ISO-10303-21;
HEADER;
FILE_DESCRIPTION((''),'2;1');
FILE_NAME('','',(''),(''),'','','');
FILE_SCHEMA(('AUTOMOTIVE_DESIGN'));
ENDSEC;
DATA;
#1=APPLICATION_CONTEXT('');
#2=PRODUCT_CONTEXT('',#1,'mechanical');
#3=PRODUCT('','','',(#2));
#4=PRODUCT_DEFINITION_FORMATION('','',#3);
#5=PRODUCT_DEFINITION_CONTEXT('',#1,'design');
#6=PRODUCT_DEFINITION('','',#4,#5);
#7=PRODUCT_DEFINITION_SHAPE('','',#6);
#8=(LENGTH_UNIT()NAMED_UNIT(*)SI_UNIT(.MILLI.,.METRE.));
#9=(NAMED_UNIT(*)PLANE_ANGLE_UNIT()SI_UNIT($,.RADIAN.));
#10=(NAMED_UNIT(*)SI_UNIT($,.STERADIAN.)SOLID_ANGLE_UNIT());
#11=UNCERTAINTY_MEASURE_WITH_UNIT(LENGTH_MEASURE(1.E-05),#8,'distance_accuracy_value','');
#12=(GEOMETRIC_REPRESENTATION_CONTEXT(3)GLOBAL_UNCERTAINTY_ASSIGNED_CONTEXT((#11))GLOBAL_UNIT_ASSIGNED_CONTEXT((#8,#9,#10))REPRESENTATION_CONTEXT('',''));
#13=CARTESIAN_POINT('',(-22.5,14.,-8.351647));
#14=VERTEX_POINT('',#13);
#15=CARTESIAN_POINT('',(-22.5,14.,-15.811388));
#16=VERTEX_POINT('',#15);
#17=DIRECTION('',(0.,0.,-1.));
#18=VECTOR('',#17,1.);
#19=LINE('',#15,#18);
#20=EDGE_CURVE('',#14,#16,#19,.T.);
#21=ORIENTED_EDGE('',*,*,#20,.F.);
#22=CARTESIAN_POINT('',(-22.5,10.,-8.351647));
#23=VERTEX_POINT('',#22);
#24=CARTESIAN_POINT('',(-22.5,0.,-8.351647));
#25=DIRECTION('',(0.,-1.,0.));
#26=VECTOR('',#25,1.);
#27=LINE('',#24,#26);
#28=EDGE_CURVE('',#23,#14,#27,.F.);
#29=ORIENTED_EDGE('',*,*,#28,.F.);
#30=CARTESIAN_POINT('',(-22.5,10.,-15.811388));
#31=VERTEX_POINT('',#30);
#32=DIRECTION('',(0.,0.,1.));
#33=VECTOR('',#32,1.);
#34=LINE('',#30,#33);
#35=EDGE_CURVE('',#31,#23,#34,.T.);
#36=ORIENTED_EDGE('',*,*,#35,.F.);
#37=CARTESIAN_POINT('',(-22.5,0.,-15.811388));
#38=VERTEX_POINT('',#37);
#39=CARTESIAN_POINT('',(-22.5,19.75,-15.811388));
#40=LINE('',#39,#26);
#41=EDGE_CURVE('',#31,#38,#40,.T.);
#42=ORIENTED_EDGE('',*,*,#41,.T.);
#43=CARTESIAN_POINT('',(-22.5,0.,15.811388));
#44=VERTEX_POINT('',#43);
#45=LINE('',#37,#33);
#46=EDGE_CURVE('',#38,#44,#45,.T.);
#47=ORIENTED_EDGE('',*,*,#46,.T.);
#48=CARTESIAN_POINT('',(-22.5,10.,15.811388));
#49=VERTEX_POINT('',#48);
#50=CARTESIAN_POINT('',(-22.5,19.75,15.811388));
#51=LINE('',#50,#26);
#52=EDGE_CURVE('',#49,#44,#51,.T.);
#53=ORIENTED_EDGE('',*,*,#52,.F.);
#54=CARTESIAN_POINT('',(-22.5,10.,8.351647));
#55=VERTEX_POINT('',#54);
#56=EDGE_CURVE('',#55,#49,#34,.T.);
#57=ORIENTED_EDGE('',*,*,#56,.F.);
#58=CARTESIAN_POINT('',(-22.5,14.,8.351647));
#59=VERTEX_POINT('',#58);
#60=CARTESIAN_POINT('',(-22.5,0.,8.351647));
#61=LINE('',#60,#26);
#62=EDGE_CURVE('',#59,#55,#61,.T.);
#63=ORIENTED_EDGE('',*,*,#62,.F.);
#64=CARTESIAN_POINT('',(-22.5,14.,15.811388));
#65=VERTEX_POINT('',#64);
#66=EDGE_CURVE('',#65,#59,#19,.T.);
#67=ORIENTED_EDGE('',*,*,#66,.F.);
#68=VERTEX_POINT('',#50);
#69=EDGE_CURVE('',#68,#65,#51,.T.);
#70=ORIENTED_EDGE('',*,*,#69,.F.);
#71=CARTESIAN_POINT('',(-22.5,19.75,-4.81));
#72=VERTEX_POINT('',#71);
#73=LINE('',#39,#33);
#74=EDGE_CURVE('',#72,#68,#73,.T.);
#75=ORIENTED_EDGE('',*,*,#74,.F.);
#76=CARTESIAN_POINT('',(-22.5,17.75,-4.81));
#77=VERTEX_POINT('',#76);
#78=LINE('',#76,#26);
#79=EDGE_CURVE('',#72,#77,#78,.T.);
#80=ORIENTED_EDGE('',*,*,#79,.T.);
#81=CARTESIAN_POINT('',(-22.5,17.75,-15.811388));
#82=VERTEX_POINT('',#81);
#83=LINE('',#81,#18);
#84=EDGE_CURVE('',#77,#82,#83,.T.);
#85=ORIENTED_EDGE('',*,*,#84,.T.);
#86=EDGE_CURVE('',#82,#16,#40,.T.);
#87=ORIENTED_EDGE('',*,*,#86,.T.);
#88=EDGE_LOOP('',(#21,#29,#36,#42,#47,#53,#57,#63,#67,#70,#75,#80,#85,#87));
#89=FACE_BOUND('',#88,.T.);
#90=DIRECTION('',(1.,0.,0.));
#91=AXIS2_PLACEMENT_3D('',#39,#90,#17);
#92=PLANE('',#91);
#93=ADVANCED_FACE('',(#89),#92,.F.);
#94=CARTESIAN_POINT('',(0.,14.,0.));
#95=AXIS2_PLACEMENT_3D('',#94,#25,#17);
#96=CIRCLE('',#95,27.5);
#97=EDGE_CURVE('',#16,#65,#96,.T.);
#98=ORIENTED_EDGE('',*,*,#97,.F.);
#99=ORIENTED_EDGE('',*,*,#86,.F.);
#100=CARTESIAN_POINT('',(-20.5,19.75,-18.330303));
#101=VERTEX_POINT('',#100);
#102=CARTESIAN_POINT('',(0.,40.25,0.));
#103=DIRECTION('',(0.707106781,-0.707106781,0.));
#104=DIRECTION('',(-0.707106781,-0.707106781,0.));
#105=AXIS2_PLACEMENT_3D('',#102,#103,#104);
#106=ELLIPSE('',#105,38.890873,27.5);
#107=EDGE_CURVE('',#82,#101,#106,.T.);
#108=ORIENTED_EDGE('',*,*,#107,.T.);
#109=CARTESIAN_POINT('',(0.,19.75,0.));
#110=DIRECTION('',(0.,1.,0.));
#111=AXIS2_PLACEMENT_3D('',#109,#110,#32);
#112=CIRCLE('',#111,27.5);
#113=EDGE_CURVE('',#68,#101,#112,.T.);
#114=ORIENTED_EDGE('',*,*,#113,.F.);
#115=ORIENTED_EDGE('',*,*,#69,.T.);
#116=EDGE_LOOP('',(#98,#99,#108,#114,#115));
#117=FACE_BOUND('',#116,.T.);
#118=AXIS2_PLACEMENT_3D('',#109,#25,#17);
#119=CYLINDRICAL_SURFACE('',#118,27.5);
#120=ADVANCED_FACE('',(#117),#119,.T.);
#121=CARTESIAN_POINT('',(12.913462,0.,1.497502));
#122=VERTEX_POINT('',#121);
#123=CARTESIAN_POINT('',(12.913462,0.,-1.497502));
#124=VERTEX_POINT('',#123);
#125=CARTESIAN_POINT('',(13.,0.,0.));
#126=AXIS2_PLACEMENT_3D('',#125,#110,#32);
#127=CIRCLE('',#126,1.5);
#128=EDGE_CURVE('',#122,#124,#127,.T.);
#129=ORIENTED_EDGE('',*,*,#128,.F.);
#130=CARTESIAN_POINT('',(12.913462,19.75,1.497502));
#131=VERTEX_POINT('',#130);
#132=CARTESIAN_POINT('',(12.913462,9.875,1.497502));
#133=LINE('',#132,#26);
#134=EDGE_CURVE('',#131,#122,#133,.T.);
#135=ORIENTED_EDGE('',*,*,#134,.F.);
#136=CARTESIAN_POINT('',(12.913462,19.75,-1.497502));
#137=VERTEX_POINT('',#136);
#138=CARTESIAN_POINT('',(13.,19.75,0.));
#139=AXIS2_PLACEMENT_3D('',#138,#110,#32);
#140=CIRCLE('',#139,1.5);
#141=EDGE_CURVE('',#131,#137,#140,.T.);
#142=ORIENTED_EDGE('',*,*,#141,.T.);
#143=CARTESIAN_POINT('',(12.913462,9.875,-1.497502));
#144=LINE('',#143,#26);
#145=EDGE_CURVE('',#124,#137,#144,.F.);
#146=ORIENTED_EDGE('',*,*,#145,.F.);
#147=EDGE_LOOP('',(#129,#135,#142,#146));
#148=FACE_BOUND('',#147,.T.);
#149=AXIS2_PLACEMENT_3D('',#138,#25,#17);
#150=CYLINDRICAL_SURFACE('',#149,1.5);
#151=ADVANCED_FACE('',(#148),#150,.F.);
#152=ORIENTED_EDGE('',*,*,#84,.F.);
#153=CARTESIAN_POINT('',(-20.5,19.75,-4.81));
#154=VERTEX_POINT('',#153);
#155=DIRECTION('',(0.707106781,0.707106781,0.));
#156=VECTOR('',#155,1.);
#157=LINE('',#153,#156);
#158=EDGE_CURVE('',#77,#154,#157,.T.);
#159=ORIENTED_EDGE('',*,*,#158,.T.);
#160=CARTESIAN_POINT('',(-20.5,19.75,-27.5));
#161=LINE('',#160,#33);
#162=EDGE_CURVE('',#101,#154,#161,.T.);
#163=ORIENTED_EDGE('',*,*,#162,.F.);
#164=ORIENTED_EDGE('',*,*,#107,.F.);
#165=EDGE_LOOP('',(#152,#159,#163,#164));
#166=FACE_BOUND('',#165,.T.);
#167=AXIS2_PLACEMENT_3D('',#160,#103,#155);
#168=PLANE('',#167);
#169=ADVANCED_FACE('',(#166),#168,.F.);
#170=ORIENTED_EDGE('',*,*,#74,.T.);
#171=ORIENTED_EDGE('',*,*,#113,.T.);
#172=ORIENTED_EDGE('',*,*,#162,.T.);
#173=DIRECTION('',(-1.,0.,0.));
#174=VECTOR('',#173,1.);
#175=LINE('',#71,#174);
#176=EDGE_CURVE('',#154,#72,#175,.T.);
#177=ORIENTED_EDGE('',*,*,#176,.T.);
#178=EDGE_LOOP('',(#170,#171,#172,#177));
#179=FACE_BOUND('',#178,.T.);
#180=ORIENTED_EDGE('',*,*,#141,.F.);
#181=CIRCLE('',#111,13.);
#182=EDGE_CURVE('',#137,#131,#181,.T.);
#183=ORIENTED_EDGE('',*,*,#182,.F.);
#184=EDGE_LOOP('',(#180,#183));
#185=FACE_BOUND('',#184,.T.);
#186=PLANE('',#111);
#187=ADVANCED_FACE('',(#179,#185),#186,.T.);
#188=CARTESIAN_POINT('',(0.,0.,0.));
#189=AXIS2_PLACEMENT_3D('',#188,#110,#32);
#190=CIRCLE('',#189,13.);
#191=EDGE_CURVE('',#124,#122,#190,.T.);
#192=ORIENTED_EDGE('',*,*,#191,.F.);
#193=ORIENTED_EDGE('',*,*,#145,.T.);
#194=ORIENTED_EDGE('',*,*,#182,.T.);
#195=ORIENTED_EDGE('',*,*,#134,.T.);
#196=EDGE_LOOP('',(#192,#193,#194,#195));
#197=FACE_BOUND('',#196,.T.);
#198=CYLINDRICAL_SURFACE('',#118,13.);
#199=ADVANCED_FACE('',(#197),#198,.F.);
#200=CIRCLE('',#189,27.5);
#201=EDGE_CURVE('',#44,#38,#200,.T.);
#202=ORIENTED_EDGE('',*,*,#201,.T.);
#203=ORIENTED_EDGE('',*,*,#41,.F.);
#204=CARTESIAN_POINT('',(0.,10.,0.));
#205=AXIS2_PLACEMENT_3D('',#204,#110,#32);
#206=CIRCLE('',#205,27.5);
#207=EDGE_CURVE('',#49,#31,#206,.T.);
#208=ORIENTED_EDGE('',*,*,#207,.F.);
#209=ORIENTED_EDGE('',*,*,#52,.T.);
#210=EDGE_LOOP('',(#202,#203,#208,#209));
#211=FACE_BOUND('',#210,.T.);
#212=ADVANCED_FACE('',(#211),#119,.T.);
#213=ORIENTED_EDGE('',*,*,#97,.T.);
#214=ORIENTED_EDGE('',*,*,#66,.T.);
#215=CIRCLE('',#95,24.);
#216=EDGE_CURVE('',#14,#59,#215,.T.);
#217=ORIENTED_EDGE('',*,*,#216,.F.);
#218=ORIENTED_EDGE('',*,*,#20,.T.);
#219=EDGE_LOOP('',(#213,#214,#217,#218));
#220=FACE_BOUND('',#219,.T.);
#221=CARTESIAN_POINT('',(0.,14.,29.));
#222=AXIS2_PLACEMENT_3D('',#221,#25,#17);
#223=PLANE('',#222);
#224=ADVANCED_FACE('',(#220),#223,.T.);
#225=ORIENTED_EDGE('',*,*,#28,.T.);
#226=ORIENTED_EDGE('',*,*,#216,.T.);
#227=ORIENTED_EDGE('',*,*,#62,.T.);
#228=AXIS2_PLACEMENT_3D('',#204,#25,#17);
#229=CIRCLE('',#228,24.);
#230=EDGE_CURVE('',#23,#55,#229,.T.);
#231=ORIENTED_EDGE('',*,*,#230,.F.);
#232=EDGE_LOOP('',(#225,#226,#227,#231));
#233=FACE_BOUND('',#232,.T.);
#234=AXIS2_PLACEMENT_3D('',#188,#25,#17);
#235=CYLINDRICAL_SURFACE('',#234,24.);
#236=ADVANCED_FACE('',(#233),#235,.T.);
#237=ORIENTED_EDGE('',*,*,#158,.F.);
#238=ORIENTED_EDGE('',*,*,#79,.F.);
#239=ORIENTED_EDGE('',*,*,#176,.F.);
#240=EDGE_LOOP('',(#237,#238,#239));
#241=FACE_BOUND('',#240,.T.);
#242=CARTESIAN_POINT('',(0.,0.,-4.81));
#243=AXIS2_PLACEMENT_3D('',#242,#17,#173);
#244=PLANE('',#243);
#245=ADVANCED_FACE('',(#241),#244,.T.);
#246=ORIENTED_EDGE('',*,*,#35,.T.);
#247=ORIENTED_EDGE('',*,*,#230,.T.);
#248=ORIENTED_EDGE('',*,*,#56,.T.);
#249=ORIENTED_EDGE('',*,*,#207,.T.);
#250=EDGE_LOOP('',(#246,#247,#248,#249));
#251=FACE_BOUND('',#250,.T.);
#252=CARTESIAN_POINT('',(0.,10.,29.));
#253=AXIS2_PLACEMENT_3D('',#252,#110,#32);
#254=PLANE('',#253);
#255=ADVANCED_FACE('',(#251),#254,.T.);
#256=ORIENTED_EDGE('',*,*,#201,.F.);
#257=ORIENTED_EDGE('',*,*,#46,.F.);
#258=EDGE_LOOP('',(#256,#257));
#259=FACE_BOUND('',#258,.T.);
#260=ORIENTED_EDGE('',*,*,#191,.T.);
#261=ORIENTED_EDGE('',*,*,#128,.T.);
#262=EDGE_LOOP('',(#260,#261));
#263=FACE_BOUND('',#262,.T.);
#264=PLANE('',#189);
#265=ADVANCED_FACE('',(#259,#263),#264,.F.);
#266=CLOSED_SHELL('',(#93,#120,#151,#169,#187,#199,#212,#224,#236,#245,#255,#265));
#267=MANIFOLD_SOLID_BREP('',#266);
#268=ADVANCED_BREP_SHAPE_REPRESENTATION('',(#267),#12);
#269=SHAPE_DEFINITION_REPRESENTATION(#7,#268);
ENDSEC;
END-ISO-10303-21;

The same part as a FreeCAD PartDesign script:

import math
import FreeCAD as App
import Part
import Sketcher
Q = App.Units.Quantity

doc = App.newDocument("Part")
body = doc.addObject("PartDesign::Body", "Body")

sketch1 = body.newObject("Sketcher::SketchObject", "Sketch")
sketch1.AttachmentSupport = (doc.getObject("XZ_Plane"), [""])
sketch1.MapMode = "FlatFace"
sketch1.addGeometry([
    Part.LineSegment(App.Vector(-22, -16, 0), App.Vector(-22, 16, 0)),
    Part.ArcOfCircle(Part.Circle(App.Vector(0, 0, 0), App.Vector(0, 0, 1), 28), math.radians(-145), math.radians(145)),
], False)
sketch1.addConstraint([
    Sketcher.Constraint("Coincident", 0, 1, 1, 1),
    Sketcher.Constraint("Coincident", 1, 2, 0, 2),
    Sketcher.Constraint("Vertical", 0),
    Sketcher.Constraint("Coincident", 1, 3, -1, 1),
    Sketcher.Constraint("Radius", 1, Q("27.5 mm")),
    Sketcher.Constraint("DistanceX", 0, 1, -1, 1, Q("22.5 mm")),
])
pad1 = body.newObject("PartDesign::Pad", "Pad")
pad1.Profile = sketch1
pad1.Length = 19.75
pad1.Reversed = True

sketch2 = body.newObject("Sketcher::SketchObject", "Sketch001")
sketch2.AttachmentSupport = (doc.getObject("XZ_Plane"), [""])
sketch2.MapMode = "FlatFace"
sketch2.addGeometry(Part.Circle(App.Vector(0, 0, 0), App.Vector(0, 0, 1), 13), False)
sketch2.addConstraint([
    Sketcher.Constraint("Coincident", 0, 3, -1, 1),
    Sketcher.Constraint("Diameter", 0, Q("26 mm")),
])
pocket1 = body.newObject("PartDesign::Pocket", "Pocket")
pocket1.Profile = sketch2
pocket1.Type = "ThroughAll"

sketch3 = body.newObject("Sketcher::SketchObject", "Sketch002")
sketch3.AttachmentSupport = (doc.getObject("YZ_Plane"), [""])
sketch3.MapMode = "FlatFace"
sketch3.addGeometry([
    Part.LineSegment(App.Vector(14, 29, 0), App.Vector(10, 29, 0)),
    Part.LineSegment(App.Vector(10, 29, 0), App.Vector(10, 24, 0)),
    Part.LineSegment(App.Vector(10, 24, 0), App.Vector(14, 24, 0)),
    Part.LineSegment(App.Vector(14, 24, 0), App.Vector(14, 29, 0)),
], False)
sketch3.addConstraint([
    Sketcher.Constraint("Coincident", 0, 2, 1, 1),
    Sketcher.Constraint("Coincident", 1, 2, 2, 1),
    Sketcher.Constraint("Coincident", 2, 2, 3, 1),
    Sketcher.Constraint("Coincident", 3, 2, 0, 1),
    Sketcher.Constraint("Horizontal", 0),
    Sketcher.Constraint("Vertical", 1),
    Sketcher.Constraint("Horizontal", 2),
    Sketcher.Constraint("Vertical", 3),
    Sketcher.Constraint("DistanceX", 0, 2, 0, 1, Q("4 mm")),
    Sketcher.Constraint("DistanceY", 1, 2, 1, 1, Q("5 mm")),
    Sketcher.Constraint("DistanceX", -1, 1, 0, 2, Q("10 mm")),
    Sketcher.Constraint("DistanceY", -1, 1, 0, 2, Q("29 mm")),
])
groove = body.newObject("PartDesign::Groove", "Groove")
groove.Profile = sketch3
groove.ReferenceAxis = (sketch3, ["H_Axis"])
groove.Angle = 360

sketch4 = body.newObject("Sketcher::SketchObject", "Sketch003")
sketch4.AttachmentSupport = (doc.getObject("XZ_Plane"), [""])
sketch4.MapMode = "FlatFace"
sketch4.addGeometry(Part.Circle(App.Vector(13, 0, 0), App.Vector(0, 0, 1), 1.5), False)
sketch4.addConstraint([
    Sketcher.Constraint("PointOnObject", 0, 3, -1),
    Sketcher.Constraint("Diameter", 0, Q("3 mm")),
    Sketcher.Constraint("DistanceX", -1, 1, 0, 3, Q("13 mm")),
])
pocket2 = body.newObject("PartDesign::Pocket", "Pocket001")
pocket2.Profile = sketch4
pocket2.Type = "ThroughAll"

sketch5 = body.newObject("Sketcher::SketchObject", "Sketch004")
sketch5.AttachmentSupport = (doc.getObject("XY_Plane"), [""])
sketch5.MapMode = "FlatFace"
sketch5.AttachmentOffset = App.Placement(App.Vector(0, 0, -4.81), App.Rotation())
sketch5.addGeometry([
    Part.LineSegment(App.Vector(-20.5, 19.8, 0), App.Vector(-22.5, 19.8, 0)),
    Part.LineSegment(App.Vector(-22.5, 19.8, 0), App.Vector(-22.5, 17.8, 0)),
    Part.LineSegment(App.Vector(-22.5, 17.8, 0), App.Vector(-20.5, 19.8, 0)),
], False)
sketch5.addConstraint([
    Sketcher.Constraint("Coincident", 0, 2, 1, 1),
    Sketcher.Constraint("Coincident", 1, 2, 2, 1),
    Sketcher.Constraint("Coincident", 2, 2, 0, 1),
    Sketcher.Constraint("Horizontal", 0),
    Sketcher.Constraint("Vertical", 1),
    Sketcher.Constraint("Equal", 0, 1),
    Sketcher.Constraint("DistanceX", 0, 2, 0, 1, Q("2 mm")),
    Sketcher.Constraint("DistanceX", 0, 2, -1, 1, Q("22.5 mm")),
    Sketcher.Constraint("DistanceY", -1, 1, 0, 2, Q("19.75 mm")),
])
pocket3 = body.newObject("PartDesign::Pocket", "Pocket002")
pocket3.Profile = sketch5
pocket3.Type = "ThroughAll"

doc.recompute()
